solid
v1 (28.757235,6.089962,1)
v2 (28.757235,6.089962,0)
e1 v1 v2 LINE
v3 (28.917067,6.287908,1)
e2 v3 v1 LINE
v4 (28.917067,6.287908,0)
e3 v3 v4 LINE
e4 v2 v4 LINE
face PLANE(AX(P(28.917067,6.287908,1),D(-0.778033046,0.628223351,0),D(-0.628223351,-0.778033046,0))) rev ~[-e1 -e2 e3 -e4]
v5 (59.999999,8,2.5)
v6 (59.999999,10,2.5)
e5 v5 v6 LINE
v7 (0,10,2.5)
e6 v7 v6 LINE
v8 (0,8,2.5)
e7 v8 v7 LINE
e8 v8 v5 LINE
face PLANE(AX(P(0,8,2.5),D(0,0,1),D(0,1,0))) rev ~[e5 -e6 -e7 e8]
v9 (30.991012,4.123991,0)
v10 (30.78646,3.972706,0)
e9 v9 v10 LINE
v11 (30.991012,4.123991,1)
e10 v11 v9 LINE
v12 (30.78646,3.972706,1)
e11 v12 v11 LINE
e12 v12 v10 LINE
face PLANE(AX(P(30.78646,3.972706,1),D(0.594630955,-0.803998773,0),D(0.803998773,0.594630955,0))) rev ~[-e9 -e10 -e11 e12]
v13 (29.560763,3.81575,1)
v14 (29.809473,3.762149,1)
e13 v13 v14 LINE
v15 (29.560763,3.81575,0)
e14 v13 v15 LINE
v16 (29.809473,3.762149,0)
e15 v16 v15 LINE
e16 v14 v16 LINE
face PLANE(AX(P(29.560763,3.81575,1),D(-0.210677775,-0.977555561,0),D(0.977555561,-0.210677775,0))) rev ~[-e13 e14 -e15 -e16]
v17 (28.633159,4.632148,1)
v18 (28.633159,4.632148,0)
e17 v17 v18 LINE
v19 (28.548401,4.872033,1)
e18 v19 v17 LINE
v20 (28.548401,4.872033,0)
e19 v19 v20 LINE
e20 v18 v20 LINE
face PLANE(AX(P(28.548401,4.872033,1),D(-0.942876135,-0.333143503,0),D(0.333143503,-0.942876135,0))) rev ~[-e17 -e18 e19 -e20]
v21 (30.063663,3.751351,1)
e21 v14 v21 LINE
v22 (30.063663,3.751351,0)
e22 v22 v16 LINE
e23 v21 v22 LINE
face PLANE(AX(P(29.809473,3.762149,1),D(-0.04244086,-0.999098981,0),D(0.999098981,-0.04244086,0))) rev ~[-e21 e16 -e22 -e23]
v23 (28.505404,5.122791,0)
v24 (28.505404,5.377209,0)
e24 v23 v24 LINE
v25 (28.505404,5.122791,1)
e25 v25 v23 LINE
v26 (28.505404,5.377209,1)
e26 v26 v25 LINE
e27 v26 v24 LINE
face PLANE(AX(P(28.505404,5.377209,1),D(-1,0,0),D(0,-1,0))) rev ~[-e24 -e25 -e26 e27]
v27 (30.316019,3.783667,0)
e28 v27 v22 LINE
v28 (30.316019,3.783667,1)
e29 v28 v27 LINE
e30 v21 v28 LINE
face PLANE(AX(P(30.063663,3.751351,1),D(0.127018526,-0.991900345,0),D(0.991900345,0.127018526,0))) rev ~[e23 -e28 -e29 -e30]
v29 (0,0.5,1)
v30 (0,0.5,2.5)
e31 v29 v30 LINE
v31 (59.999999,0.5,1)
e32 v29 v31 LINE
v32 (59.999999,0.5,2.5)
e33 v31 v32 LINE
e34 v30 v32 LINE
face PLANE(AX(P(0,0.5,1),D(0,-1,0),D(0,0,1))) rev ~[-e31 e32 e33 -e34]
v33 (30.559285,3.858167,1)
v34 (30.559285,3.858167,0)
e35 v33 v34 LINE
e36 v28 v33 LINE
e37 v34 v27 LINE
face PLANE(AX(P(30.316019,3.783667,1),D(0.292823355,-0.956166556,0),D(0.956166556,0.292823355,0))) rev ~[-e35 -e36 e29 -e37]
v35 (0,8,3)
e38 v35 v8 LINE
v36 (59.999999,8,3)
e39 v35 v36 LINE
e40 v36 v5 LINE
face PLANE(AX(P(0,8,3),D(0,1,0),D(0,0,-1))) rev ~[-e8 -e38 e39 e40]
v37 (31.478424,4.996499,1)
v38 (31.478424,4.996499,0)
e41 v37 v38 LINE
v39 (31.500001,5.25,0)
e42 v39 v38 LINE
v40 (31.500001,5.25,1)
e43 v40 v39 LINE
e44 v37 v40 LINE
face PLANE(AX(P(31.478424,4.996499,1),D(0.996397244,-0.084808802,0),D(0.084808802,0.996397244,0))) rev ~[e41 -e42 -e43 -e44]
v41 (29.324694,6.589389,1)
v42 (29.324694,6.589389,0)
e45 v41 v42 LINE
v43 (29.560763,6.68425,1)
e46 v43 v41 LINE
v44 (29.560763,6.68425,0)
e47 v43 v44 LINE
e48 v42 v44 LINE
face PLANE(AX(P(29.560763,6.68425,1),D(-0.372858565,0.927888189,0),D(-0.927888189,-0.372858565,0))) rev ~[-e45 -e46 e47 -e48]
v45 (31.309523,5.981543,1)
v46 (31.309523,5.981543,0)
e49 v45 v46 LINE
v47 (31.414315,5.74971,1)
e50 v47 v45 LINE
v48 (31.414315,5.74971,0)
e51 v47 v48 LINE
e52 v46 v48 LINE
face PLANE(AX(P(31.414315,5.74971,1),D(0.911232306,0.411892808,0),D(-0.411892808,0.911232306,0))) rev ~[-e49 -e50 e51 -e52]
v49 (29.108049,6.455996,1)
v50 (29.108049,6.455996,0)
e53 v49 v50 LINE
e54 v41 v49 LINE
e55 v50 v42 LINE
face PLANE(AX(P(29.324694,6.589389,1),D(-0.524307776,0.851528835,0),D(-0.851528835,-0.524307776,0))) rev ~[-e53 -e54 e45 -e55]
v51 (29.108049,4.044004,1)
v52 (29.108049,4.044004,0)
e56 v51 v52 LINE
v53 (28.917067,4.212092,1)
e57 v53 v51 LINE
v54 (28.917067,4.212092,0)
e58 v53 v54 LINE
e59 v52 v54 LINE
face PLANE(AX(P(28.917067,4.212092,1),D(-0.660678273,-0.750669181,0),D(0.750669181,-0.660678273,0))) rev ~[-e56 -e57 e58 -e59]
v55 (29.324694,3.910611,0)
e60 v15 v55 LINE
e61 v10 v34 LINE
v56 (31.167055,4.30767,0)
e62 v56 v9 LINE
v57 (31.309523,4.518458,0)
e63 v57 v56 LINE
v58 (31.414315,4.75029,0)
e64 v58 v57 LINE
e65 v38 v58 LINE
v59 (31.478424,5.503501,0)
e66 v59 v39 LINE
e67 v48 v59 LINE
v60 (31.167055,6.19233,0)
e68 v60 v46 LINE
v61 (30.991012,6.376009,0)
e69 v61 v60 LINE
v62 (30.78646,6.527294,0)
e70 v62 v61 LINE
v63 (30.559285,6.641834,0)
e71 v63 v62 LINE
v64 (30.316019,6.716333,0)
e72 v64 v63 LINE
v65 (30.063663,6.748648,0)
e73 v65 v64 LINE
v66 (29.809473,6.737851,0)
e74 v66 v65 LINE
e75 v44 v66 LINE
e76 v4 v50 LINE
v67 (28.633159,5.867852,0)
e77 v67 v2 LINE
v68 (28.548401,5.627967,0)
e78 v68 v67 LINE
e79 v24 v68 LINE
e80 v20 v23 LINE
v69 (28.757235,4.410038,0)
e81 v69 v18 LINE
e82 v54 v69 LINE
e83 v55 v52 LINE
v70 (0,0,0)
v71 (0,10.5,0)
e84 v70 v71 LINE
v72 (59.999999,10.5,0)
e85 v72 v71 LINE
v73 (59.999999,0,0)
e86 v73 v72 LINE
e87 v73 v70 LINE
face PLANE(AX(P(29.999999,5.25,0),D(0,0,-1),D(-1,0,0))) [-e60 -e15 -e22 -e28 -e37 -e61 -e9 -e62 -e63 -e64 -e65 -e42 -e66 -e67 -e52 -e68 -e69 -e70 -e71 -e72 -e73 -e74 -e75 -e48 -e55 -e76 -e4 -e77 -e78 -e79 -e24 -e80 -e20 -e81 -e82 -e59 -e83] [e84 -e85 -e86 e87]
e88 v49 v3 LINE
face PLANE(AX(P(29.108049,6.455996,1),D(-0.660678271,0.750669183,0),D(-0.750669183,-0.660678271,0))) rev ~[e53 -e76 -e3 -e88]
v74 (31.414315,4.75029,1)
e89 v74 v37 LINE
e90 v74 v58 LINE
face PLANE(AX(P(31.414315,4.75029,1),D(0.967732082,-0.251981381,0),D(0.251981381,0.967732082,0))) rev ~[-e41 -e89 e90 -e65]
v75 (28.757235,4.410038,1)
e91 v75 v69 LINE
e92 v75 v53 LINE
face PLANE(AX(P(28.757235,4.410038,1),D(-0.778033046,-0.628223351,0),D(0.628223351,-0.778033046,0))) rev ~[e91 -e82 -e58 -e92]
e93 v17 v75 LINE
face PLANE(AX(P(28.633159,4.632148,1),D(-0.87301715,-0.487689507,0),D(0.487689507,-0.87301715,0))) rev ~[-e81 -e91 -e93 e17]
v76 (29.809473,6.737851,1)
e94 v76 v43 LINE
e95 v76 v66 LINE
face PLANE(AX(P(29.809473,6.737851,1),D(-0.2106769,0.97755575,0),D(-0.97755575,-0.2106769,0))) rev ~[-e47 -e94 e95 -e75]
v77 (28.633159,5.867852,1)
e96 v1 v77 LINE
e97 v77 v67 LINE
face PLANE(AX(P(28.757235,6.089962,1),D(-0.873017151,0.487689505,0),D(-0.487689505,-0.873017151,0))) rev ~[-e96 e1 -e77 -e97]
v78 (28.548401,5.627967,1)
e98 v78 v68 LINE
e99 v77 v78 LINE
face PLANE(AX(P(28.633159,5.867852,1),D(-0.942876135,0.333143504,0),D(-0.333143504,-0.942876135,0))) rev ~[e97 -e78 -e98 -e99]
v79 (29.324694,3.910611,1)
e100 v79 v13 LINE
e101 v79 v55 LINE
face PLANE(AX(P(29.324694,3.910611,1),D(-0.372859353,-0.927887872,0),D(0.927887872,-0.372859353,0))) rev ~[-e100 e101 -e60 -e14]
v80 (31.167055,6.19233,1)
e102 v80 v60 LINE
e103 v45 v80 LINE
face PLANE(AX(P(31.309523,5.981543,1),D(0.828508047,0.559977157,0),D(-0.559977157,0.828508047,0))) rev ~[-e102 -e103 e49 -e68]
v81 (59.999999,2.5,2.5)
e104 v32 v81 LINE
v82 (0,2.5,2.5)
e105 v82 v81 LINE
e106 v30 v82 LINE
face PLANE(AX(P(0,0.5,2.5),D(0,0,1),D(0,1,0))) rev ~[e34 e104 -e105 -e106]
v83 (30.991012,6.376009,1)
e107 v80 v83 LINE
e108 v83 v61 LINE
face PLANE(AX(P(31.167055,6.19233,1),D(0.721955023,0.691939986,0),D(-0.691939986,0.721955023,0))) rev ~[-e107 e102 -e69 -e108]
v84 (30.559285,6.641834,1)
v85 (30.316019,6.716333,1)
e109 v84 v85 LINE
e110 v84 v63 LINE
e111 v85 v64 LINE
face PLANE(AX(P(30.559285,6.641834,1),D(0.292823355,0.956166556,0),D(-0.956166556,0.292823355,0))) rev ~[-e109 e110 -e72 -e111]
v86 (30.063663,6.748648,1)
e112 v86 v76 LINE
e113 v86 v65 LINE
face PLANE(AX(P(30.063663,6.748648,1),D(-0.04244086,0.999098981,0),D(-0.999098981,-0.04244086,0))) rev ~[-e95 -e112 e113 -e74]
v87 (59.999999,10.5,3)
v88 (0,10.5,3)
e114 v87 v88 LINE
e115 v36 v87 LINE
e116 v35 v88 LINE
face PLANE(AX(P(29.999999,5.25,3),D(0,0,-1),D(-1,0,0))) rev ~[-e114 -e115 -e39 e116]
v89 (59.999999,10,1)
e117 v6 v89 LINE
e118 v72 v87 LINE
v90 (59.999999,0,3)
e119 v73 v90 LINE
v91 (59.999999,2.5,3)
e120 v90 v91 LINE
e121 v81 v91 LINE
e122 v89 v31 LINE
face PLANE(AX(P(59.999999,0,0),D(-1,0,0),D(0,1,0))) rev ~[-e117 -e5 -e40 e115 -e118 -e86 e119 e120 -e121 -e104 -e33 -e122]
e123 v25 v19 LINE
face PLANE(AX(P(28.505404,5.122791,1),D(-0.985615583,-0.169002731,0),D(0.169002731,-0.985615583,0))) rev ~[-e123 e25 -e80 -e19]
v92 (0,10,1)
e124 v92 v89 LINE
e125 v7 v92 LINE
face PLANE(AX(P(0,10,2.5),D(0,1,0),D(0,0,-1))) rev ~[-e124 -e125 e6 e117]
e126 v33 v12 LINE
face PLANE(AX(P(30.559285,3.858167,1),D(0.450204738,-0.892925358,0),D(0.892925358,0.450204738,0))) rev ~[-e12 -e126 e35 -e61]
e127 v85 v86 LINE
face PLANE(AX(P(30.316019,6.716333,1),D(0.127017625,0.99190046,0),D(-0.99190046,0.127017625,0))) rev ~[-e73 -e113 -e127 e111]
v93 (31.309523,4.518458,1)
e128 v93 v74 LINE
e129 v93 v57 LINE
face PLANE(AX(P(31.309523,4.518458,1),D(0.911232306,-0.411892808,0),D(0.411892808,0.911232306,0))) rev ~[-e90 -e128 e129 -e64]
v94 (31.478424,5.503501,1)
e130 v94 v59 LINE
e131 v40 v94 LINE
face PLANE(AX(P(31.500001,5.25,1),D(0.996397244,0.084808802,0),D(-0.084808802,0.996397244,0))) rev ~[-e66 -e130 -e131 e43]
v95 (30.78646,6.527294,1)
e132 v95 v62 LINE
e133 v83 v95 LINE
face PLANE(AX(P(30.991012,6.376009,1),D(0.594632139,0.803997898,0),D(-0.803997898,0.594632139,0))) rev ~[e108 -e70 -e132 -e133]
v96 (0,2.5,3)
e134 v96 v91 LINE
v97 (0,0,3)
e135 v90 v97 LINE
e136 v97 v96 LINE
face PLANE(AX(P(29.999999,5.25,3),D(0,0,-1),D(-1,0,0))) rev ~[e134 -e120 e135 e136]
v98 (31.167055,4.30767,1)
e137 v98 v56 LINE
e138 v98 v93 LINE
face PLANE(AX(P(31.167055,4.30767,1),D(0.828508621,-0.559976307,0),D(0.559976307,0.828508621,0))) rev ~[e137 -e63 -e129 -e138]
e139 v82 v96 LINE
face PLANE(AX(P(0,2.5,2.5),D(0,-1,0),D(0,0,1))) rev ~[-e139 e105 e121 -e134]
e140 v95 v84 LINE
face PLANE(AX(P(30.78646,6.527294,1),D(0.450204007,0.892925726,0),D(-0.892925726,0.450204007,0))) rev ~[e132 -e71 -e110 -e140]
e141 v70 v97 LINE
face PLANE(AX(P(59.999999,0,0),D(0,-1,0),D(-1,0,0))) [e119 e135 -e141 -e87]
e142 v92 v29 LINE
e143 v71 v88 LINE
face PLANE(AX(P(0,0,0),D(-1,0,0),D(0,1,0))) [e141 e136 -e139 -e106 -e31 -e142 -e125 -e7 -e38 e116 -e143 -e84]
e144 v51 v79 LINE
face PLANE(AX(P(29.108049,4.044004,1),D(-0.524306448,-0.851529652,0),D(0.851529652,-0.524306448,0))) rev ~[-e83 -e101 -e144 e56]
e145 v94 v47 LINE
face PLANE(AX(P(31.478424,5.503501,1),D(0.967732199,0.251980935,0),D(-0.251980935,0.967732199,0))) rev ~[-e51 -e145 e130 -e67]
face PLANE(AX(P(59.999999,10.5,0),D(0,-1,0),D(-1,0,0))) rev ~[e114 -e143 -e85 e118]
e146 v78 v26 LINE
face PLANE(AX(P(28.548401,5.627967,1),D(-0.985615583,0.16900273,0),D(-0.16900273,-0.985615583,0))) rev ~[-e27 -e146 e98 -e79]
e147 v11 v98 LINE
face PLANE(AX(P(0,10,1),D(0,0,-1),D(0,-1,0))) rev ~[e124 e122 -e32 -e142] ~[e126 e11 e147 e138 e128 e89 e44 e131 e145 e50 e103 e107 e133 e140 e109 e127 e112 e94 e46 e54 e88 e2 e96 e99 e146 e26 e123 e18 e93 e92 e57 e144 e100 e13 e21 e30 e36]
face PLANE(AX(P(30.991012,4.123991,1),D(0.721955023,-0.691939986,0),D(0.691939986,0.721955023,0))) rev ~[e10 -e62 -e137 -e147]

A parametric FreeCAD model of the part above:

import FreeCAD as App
import Part
import Sketcher
Q = App.Units.Quantity


def add_polygon(sketch, points):
    """Adds a closed chain of lines whose ends are joined by coincident constraints."""
    first, n = sketch.GeometryCount, len(points)
    for a, b in zip(points, points[1:] + points[:1]):
        sketch.addGeometry(Part.LineSegment(App.Vector(*a, 0), App.Vector(*b, 0)), False)
    for i in range(n):
        sketch.addConstraint(Sketcher.Constraint("Coincident", first + i, 2, first + (i + 1) % n, 1))

doc = App.newDocument("Part")
body = doc.addObject("PartDesign::Body", "Body")

# Sketch on XY plane
sketch1 = body.newObject("Sketcher::SketchObject", "Sketch")
sketch1.AttachmentSupport = (doc.getObject("XY_Plane"), [""])
sketch1.MapMode = "FlatFace"
add_polygon(sketch1, [(60, 10), (60, 0), (0, 0), (0, 10)])  # lines 0-3
sketch1.addConstraint([
    Sketcher.Constraint("Vertical", 0),
    Sketcher.Constraint("Horizontal", 1),
    Sketcher.Constraint("Vertical", 2),
    Sketcher.Constraint("Horizontal", 3),
    Sketcher.Constraint("Coincident", 1, 2, -1, 1),
    Sketcher.Constraint("DistanceX", 1, 2, 1, 1, Q("59.999999 mm")),
    Sketcher.Constraint("DistanceY", 0, 2, 0, 1, Q("10.5 mm")),
])
pad1 = body.newObject("PartDesign::Pad", "Pad")
pad1.Profile = sketch1
pad1.Length = 3

# Sketch on YZ plane
sketch2 = body.newObject("Sketcher::SketchObject", "Sketch001")
sketch2.AttachmentSupport = (doc.getObject("YZ_Plane"), [""])
sketch2.MapMode = "FlatFace"
add_polygon(sketch2, [(2.5, 3), (8, 3), (8, 2.5), (10, 2.5), (10, 1), (0.5, 1), (0.5, 2.5), (2.5, 2.5)])  # lines 0-7
sketch2.addConstraint([
    Sketcher.Constraint("Horizontal", 0),
    Sketcher.Constraint("Vertical", 1),
    Sketcher.Constraint("Horizontal", 2),
    Sketcher.Constraint("Vertical", 3),
    Sketcher.Constraint("Horizontal", 4),
    Sketcher.Constraint("Vertical", 5),
    Sketcher.Constraint("Horizontal", 6),
    Sketcher.Constraint("Vertical", 7),
    Sketcher.Constraint("Horizontal", 2, 2, 5, 2),
    Sketcher.Constraint("Equal", 2, 6),
    Sketcher.Constraint("DistanceX", 2, 1, 2, 2, Q("1.999999 mm")),
    Sketcher.Constraint("DistanceX", 0, 1, 0, 2, Q("5.5 mm")),
    Sketcher.Constraint("DistanceY", 1, 2, 1, 1, Q("0.5 mm")),
    Sketcher.Constraint("DistanceY", 3, 2, 3, 1, Q("1.5 mm")),
    Sketcher.Constraint("DistanceX", -1, 1, 0, 2, Q("8 mm")),
    Sketcher.Constraint("DistanceY", -1, 1, 0, 2, Q("3 mm")),
])
pocket1 = body.newObject("PartDesign::Pocket", "Pocket")
pocket1.Profile = sketch2
pocket1.Type = "ThroughAll"
pocket1.Reversed = True

# Sketch on XY plane
sketch3 = body.newObject("Sketcher::SketchObject", "Sketch002")
sketch3.AttachmentSupport = (doc.getObject("XY_Plane"), [""])
sketch3.MapMode = "FlatFace"
sketch3.AttachmentOffset = App.Placement(App.Vector(0, 0, 1), App.Rotation())
add_polygon(sketch3, [(30.559285, 6.641834), (30.316019, 6.716333), (30.063663, 6.748648), (29.809473, 6.737851), (29.560763, 6.68425), (29.324694, 6.589389), (29.108049, 6.455996), (28.917067, 6.287908), (28.757235, 6.089962), (28.633159, 5.867852), (28.548401, 5.627967), (28.505404, 5.377209), (28.505404, 5.122791), (28.548401, 4.872033), (28.633159, 4.632148), (28.757235, 4.410038), (28.917067, 4.212092), (29.108049, 4.044004), (29.324694, 3.910611), (29.560763, 3.81575), (29.809473, 3.762149), (30.063663, 3.751351), (30.316019, 3.783667), (30.559285, 3.858167), (30.78646, 3.972706), (30.991012, 4.123991), (31.167055, 4.30767), (31.309523, 4.518458), (31.414315, 4.75029), (31.478424, 4.996499), (31.500001, 5.25), (31.478424, 5.503501), (31.414315, 5.74971), (31.309523, 5.981543), (31.167055, 6.19233), (30.991012, 6.376009), (30.78646, 6.527294)])  # lines 0-36
sketch3.addConstraint([
    Sketcher.Constraint("Vertical", 11),
    Sketcher.Constraint("DistanceX", -1, 1, 29, 2, Q("31.500001 mm")),
    Sketcher.Constraint("DistanceY", -1, 1, 29, 2, Q("5.25 mm")),
    Sketcher.Constraint("DistanceX", -1, 1, 9, 2, Q("28.548401 mm")),
    Sketcher.Constraint("DistanceX", -1, 1, 12, 2, Q("28.548401 mm")),
    Sketcher.Constraint("DistanceY", -1, 1, 28, 2, Q("4.996499 mm")),
    Sketcher.Constraint("DistanceY", -1, 1, 30, 2, Q("5.503501 mm")),
    Sketcher.Constraint("DistanceY", 3, 2, 2, 2, Q("0.0536 mm")),
    Sketcher.Constraint("DistanceX", 3, 2, 1, 2, Q("0.502899 mm")),
    Sketcher.Constraint("DistanceY", 3, 2, 1, 2, Q("0.064398 mm")),
    Sketcher.Constraint("DistanceY", 8, 2, 3, 2, Q("0.816398 mm")),
    Sketcher.Constraint("DistanceY", 10, 2, 6, 2, Q("0.910699 mm")),
    Sketcher.Constraint("DistanceY", 15, 2, 11, 2, Q("0.910699 mm")),
    Sketcher.Constraint("DistanceY", 18, 2, 13, 2, Q("0.816398 mm")),
    Sketcher.Constraint("DistanceY", 19, 2, 18, 2, Q("0.053601 mm")),
    Sketcher.Constraint("DistanceX", 18, 2, 20, 2, Q("0.502899 mm")),
    Sketcher.Constraint("DistanceY", 20, 2, 18, 2, Q("0.064398 mm")),
    Sketcher.Constraint("DistanceY", 21, 2, 22, 2, Q("0.074499 mm")),
    Sketcher.Constraint("DistanceY", 24, 2, 27, 2, Q("0.626299 mm")),
    Sketcher.Constraint("DistanceX", 26, 2, 28, 2, Q("0.168901 mm")),
    Sketcher.Constraint("DistanceX", 26, 2, 30, 2, Q("0.168901 mm")),
    Sketcher.Constraint("DistanceX", 32, 2, 30, 2, Q("0.168901 mm")),
    Sketcher.Constraint("DistanceY", 31, 2, 34, 2, Q("0.626299 mm")),
    Sketcher.Constraint("DistanceY", 36, 2, 0, 2, Q("0.074499 mm")),
    Sketcher.Constraint("Distance", 2, Q("0.254419 mm")),
    Sketcher.Constraint("Distance", 7, Q("0.254419 mm")),
    Sketcher.Constraint("Distance", 9, Q("0.254418 mm")),
    Sketcher.Constraint("Distance", 13, Q("0.254418 mm")),
    Sketcher.Constraint("Distance", 15, Q("0.254419 mm")),
    Sketcher.Constraint("Distance", 19, Q("0.25442 mm")),
    Sketcher.Constraint("Distance", 24, Q("0.254418 mm")),
    Sketcher.Constraint("Distance", 25, Q("0.254418 mm")),
    Sketcher.Constraint("Distance", 26, Q("0.254418 mm")),
    Sketcher.Constraint("Distance", 31, Q("0.254418 mm")),
    Sketcher.Constraint("Distance", 34, Q("0.254418 mm")),
    Sketcher.Constraint("Distance", 35, Q("0.254419 mm")),
    Sketcher.Constraint("DistanceY", 11, 2, 11, 1, Q("0.254418 mm")),
    Sketcher.Constraint("DistanceX", -1, 1, 0, 2, Q("30.316019 mm")),
    Sketcher.Constraint("DistanceY", -1, 1, 1, 2, Q("6.748648 mm")),
    Sketcher.Constraint("DistanceY", -1, 1, 4, 2, Q("6.589389 mm")),
    Sketcher.Constraint("DistanceX", -1, 1, 5, 2, Q("29.108049 mm")),
    Sketcher.Constraint("DistanceY", -1, 1, 6, 2, Q("6.287908 mm")),
    Sketcher.Constraint("DistanceX", -1, 1, 8, 2, Q("28.633159 mm")),
    Sketcher.Constraint("DistanceX", -1, 1, 13, 2, Q("28.633159 mm")),
    Sketcher.Constraint("DistanceX", -1, 1, 16, 2, Q("29.108049 mm")),
    Sketcher.Constraint("DistanceY", -1, 1, 17, 2, Q("3.910611 mm")),
    Sketcher.Constraint("DistanceY", -1, 1, 18, 2, Q("3.81575 mm")),
    Sketcher.Constraint("DistanceX", -1, 1, 21, 2, Q("30.316019 mm")),
    Sketcher.Constraint("DistanceX", -1, 1, 23, 2, Q("30.78646 mm")),
    Sketcher.Constraint("DistanceY", -1, 1, 24, 2, Q("4.123991 mm")),
    Sketcher.Constraint("DistanceY", -1, 1, 25, 2, Q("4.30767 mm")),
    Sketcher.Constraint("DistanceY", -1, 1, 31, 2, Q("5.74971 mm")),
    Sketcher.Constraint("DistanceY", -1, 1, 33, 2, Q("6.19233 mm")),
    Sketcher.Constraint("DistanceX", -1, 1, 35, 2, Q("30.78646 mm")),
    Sketcher.Constraint("DistanceX", 4, 2, 3, 2, Q("0.23607 mm")),
    Sketcher.Constraint("DistanceX", 7, 2, 6, 2, Q("0.159832 mm")),
    Sketcher.Constraint("DistanceX", 7, 2, 4, 2, Q("0.567459 mm")),
    Sketcher.Constraint("DistanceX", 8, 2, 6, 2, Q("0.283908 mm")),
    Sketcher.Constraint("DistanceY", 9, 2, 5, 2, Q("0.828029 mm")),
    Sketcher.Constraint("DistanceX", 10, 2, 7, 2, Q("0.251831 mm")),
    Sketcher.Constraint("DistanceY", 14, 2, 13, 2, Q("0.22211 mm")),
    Sketcher.Constraint("DistanceX", 11, 2, 14, 2, Q("0.251831 mm")),
    Sketcher.Constraint("DistanceY", 16, 2, 12, 2, Q("0.828029 mm")),
    Sketcher.Constraint("DistanceX", 14, 2, 17, 2, Q("0.567459 mm")),
    Sketcher.Constraint("DistanceX", 17, 2, 18, 2, Q("0.23607 mm")),
    Sketcher.Constraint("DistanceX", 20, 2, 22, 2, Q("0.495622 mm")),
    Sketcher.Constraint("DistanceY", 22, 2, 23, 2, Q("0.11454 mm")),
    Sketcher.Constraint("DistanceX", 23, 2, 24, 2, Q("0.204552 mm")),
    Sketcher.Constraint("DistanceX", 25, 2, 26, 2, Q("0.142468 mm")),
    Sketcher.Constraint("DistanceX", 25, 2, 27, 2, Q("0.247261 mm")),
    Sketcher.Constraint("DistanceY", 30, 2, 32, 2, Q("0.478041 mm")),
    Sketcher.Constraint("DistanceX", 33, 2, 32, 2, Q("0.142468 mm")),
    Sketcher.Constraint("DistanceY", 35, 2, 0, 2, Q("0.189039 mm")),
    Sketcher.Constraint("DistanceX", 1, 2, 36, 2, Q("0.495622 mm")),
])
pocket2 = body.newObject("PartDesign::Pocket", "Pocket001")
pocket2.Profile = sketch3
pocket2.Type = "ThroughAll"

doc.recompute()
